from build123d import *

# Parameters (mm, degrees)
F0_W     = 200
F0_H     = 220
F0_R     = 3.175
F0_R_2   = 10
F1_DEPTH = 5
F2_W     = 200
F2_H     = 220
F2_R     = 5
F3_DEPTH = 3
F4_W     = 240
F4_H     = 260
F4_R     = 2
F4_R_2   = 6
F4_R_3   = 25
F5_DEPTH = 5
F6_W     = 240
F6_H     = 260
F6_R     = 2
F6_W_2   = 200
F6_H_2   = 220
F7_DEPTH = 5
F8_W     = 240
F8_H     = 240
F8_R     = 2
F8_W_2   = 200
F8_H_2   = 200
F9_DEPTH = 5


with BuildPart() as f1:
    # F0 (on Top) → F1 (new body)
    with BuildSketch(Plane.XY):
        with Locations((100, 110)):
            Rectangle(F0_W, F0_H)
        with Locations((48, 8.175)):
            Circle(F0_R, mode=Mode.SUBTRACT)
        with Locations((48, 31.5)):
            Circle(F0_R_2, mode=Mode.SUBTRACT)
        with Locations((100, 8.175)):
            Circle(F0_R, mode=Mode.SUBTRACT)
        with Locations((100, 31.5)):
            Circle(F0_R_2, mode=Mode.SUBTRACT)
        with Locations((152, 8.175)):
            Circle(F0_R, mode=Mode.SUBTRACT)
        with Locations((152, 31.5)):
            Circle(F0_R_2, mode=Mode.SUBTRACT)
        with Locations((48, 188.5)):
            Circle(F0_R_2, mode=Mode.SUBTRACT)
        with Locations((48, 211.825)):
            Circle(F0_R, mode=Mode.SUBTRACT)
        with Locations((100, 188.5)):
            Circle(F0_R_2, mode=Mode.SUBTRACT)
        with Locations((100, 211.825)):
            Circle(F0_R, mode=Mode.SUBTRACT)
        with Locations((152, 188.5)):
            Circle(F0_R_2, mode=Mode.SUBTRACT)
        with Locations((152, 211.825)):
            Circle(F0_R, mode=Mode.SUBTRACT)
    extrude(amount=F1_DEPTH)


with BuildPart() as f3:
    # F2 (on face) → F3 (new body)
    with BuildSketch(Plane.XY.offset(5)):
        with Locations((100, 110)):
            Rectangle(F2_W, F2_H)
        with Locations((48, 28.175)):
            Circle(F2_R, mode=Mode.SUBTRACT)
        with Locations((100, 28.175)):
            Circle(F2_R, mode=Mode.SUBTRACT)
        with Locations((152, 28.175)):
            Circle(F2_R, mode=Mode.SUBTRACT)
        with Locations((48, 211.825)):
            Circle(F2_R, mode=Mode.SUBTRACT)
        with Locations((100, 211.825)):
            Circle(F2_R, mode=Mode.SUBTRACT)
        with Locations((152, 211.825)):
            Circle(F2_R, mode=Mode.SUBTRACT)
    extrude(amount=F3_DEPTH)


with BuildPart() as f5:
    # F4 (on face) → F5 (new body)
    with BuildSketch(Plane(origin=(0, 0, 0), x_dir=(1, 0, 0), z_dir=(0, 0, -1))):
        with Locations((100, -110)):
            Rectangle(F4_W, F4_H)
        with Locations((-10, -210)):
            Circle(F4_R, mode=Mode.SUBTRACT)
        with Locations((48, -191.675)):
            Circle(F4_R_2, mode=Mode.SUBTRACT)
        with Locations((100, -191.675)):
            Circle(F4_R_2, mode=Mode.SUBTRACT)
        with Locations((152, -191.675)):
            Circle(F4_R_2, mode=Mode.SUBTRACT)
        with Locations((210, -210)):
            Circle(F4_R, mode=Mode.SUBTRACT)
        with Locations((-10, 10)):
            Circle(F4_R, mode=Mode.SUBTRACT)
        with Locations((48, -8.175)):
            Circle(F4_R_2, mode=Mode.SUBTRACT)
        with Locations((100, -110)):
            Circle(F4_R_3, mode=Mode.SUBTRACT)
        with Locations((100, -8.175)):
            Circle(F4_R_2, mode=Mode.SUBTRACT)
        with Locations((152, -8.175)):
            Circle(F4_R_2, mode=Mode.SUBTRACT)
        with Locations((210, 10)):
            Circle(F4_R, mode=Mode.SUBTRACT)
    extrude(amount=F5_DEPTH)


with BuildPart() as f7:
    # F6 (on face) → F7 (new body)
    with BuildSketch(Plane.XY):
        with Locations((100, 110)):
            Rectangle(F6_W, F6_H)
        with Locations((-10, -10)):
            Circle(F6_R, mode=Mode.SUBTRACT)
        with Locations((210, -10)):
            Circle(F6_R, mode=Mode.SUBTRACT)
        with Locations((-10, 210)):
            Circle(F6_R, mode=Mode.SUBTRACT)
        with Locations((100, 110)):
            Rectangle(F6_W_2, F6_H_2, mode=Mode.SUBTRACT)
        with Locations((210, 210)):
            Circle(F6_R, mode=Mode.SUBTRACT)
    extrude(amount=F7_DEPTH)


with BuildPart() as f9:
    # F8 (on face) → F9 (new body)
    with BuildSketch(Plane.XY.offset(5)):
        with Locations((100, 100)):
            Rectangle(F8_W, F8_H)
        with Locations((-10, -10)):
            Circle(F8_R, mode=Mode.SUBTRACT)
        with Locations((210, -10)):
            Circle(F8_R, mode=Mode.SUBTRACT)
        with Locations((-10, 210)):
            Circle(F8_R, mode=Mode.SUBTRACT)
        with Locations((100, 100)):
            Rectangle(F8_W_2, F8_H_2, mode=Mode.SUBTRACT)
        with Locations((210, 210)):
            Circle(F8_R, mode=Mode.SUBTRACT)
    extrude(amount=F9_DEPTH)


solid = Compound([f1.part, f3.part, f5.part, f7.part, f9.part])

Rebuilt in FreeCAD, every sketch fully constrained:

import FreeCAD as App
import Part
import Sketcher
Q = App.Units.Quantity

doc = App.newDocument("Part")
body = doc.addObject("PartDesign::Body", "Body")

# Sketch on XY plane
sketch1 = body.newObject("Sketcher::SketchObject", "Sketch")
sketch1.AttachmentSupport = (doc.getObject("XY_Plane"), [""])
sketch1.MapMode = "FlatFace"
sketch1.addGeometry(Part.LineSegment(App.Vector(0, 220, 0), App.Vector(0, 0, 0)), False)
sketch1.addGeometry(Part.LineSegment(App.Vector(0, 0, 0), App.Vector(200, 0, 0)), False)
sketch1.addGeometry(Part.LineSegment(App.Vector(200, 0, 0), App.Vector(200, 220, 0)), False)
sketch1.addGeometry(Part.LineSegment(App.Vector(200, 220, 0), App.Vector(0, 220, 0)), False)
sketch1.addGeometry(Part.Circle(App.Vector(48, 8.2, 0), App.Vector(0, 0, 1), 3.2), False)
sketch1.addGeometry(Part.Circle(App.Vector(48, 31.5, 0), App.Vector(0, 0, 1), 10), False)
sketch1.addGeometry(Part.Circle(App.Vector(100, 8.2, 0), App.Vector(0, 0, 1), 3.2), False)
sketch1.addGeometry(Part.Circle(App.Vector(100, 31.5, 0), App.Vector(0, 0, 1), 10), False)
sketch1.addGeometry(Part.Circle(App.Vector(152, 8.2, 0), App.Vector(0, 0, 1), 3.2), False)
sketch1.addGeometry(Part.Circle(App.Vector(152, 31.5, 0), App.Vector(0, 0, 1), 10), False)
sketch1.addGeometry(Part.Circle(App.Vector(48, 188.5, 0), App.Vector(0, 0, 1), 10), False)
sketch1.addGeometry(Part.Circle(App.Vector(48, 211.8, 0), App.Vector(0, 0, 1), 3.2), False)
sketch1.addGeometry(Part.Circle(App.Vector(100, 188.5, 0), App.Vector(0, 0, 1), 10), False)
sketch1.addGeometry(Part.Circle(App.Vector(100, 211.8, 0), App.Vector(0, 0, 1), 3.2), False)
sketch1.addGeometry(Part.Circle(App.Vector(152, 188.5, 0), App.Vector(0, 0, 1), 10), False)
sketch1.addGeometry(Part.Circle(App.Vector(152, 211.8, 0), App.Vector(0, 0, 1), 3.2), False)
sketch1.addConstraint(Sketcher.Constraint("Coincident", 0, 2, 1, 1))
sketch1.addConstraint(Sketcher.Constraint("Coincident", 1, 2, 2, 1))
sketch1.addConstraint(Sketcher.Constraint("Coincident", 2, 2, 3, 1))
sketch1.addConstraint(Sketcher.Constraint("Coincident", 3, 2, 0, 1))
sketch1.addConstraint(Sketcher.Constraint("Vertical", 0))
sketch1.addConstraint(Sketcher.Constraint("Horizontal", 1))
sketch1.addConstraint(Sketcher.Constraint("Vertical", 2))
sketch1.addConstraint(Sketcher.Constraint("Horizontal", 3))
sketch1.addConstraint(Sketcher.Constraint("Coincident", 0, 2, -1, 1))
sketch1.addConstraint(Sketcher.Constraint("Equal", 4, 6))
sketch1.addConstraint(Sketcher.Constraint("Equal", 5, 7))
sketch1.addConstraint(Sketcher.Constraint("Equal", 6, 8))
sketch1.addConstraint(Sketcher.Constraint("Equal", 7, 9))
sketch1.addConstraint(Sketcher.Constraint("Equal", 9, 10))
sketch1.addConstraint(Sketcher.Constraint("Equal", 8, 11))
sketch1.addConstraint(Sketcher.Constraint("Equal", 10, 12))
sketch1.addConstraint(Sketcher.Constraint("Equal", 11, 13))
sketch1.addConstraint(Sketcher.Constraint("Equal", 12, 14))
sketch1.addConstraint(Sketcher.Constraint("Equal", 13, 15))
sketch1.addConstraint(Sketcher.Constraint("Horizontal", 4, 3, 6, 3))
sketch1.addConstraint(Sketcher.Constraint("Horizontal", 5, 3, 7, 3))
sketch1.addConstraint(Sketcher.Constraint("Horizontal", 6, 3, 8, 3))
sketch1.addConstraint(Sketcher.Constraint("Horizontal", 7, 3, 9, 3))
sketch1.addConstraint(Sketcher.Constraint("Horizontal", 10, 3, 12, 3))
sketch1.addConstraint(Sketcher.Constraint("Horizontal", 11, 3, 13, 3))
sketch1.addConstraint(Sketcher.Constraint("Horizontal", 12, 3, 14, 3))
sketch1.addConstraint(Sketcher.Constraint("Horizontal", 13, 3, 15, 3))
sketch1.addConstraint(Sketcher.Constraint("Vertical", 4, 3, 5, 3))
sketch1.addConstraint(Sketcher.Constraint("Vertical", 6, 3, 7, 3))
sketch1.addConstraint(Sketcher.Constraint("Vertical", 8, 3, 9, 3))
sketch1.addConstraint(Sketcher.Constraint("Vertical", 5, 3, 10, 3))
sketch1.addConstraint(Sketcher.Constraint("Vertical", 10, 3, 11, 3))
sketch1.addConstraint(Sketcher.Constraint("Vertical", 7, 3, 12, 3))
sketch1.addConstraint(Sketcher.Constraint("Vertical", 12, 3, 13, 3))
sketch1.addConstraint(Sketcher.Constraint("Vertical", 9, 3, 14, 3))
sketch1.addConstraint(Sketcher.Constraint("Vertical", 14, 3, 15, 3))
sketch1.addConstraint(Sketcher.Constraint("Diameter", 5, Q("20 mm")))
sketch1.addConstraint(Sketcher.Constraint("Diameter", 4, Q("6.35 mm")))
sketch1.addConstraint(Sketcher.Constraint("DistanceX", 1, 1, 1, 2, Q("200 mm")))
sketch1.addConstraint(Sketcher.Constraint("DistanceY", 0, 2, 0, 1, Q("220 mm")))
sketch1.addConstraint(Sketcher.Constraint("DistanceX", -1, 1, 4, 3, Q("48 mm")))
sketch1.addConstraint(Sketcher.Constraint("DistanceX", -1, 1, 6, 3, Q("100 mm")))
sketch1.addConstraint(Sketcher.Constraint("DistanceX", -1, 1, 8, 3, Q("152 mm")))
sketch1.addConstraint(Sketcher.Constraint("DistanceY", 5, 3, 10, 3, Q("157 mm")))
sketch1.addConstraint(Sketcher.Constraint("DistanceY", -1, 1, 5, 3, Q("31.5 mm")))
sketch1.addConstraint(Sketcher.Constraint("DistanceY", 4, 3, 11, 3, Q("203.65 mm")))
sketch1.addConstraint(Sketcher.Constraint("DistanceY", -1, 1, 4, 3, Q("8.175 mm")))
pad1 = body.newObject("PartDesign::Pad", "Pad")
pad1.Profile = sketch1
pad1.Length = 5
body2 = doc.addObject("PartDesign::Body", "Body001")

# Sketch on XY plane
sketch2 = body2.newObject("Sketcher::SketchObject", "Sketch001")
sketch2.AttachmentSupport = (doc.getObject("XY_Plane001"), [""])
sketch2.MapMode = "FlatFace"
sketch2.AttachmentOffset = App.Placement(App.Vector(0, 0, 5), App.Rotation())
sketch2.addGeometry(Part.LineSegment(App.Vector(0, 220, 0), App.Vector(0, 0, 0)), False)
sketch2.addGeometry(Part.LineSegment(App.Vector(0, 0, 0), App.Vector(200, 0, 0)), False)
sketch2.addGeometry(Part.LineSegment(App.Vector(200, 0, 0), App.Vector(200, 220, 0)), False)
sketch2.addGeometry(Part.LineSegment(App.Vector(200, 220, 0), App.Vector(0, 220, 0)), False)
sketch2.addGeometry(Part.Circle(App.Vector(48, 28, 0), App.Vector(0, 0, 1), 5), False)
sketch2.addGeometry(Part.Circle(App.Vector(100, 28, 0), App.Vector(0, 0, 1), 5), False)
sketch2.addGeometry(Part.Circle(App.Vector(152, 28, 0), App.Vector(0, 0, 1), 5), False)
sketch2.addGeometry(Part.Circle(App.Vector(48, 212, 0), App.Vector(0, 0, 1), 5), False)
sketch2.addGeometry(Part.Circle(App.Vector(100, 212, 0), App.Vector(0, 0, 1), 5), False)
sketch2.addGeometry(Part.Circle(App.Vector(152, 212, 0), App.Vector(0, 0, 1), 5), False)
sketch2.addConstraint(Sketcher.Constraint("Coincident", 0, 2, 1, 1))
sketch2.addConstraint(Sketcher.Constraint("Coincident", 1, 2, 2, 1))
sketch2.addConstraint(Sketcher.Constraint("Coincident", 2, 2, 3, 1))
sketch2.addConstraint(Sketcher.Constraint("Coincident", 3, 2, 0, 1))
sketch2.addConstraint(Sketcher.Constraint("Vertical", 0))
sketch2.addConstraint(Sketcher.Constraint("Horizontal", 1))
sketch2.addConstraint(Sketcher.Constraint("Vertical", 2))
sketch2.addConstraint(Sketcher.Constraint("Horizontal", 3))
sketch2.addConstraint(Sketcher.Constraint("Coincident", 0, 2, -1, 1))
sketch2.addConstraint(Sketcher.Constraint("Equal", 4, 5))
sketch2.addConstraint(Sketcher.Constraint("Equal", 5, 6))
sketch2.addConstraint(Sketcher.Constraint("Equal", 6, 7))
sketch2.addConstraint(Sketcher.Constraint("Equal", 7, 8))
sketch2.addConstraint(Sketcher.Constraint("Equal", 8, 9))
sketch2.addConstraint(Sketcher.Constraint("Horizontal", 4, 3, 5, 3))
sketch2.addConstraint(Sketcher.Constraint("Horizontal", 5, 3, 6, 3))
sketch2.addConstraint(Sketcher.Constraint("Horizontal", 7, 3, 8, 3))
sketch2.addConstraint(Sketcher.Constraint("Horizontal", 8, 3, 9, 3))
sketch2.addConstraint(Sketcher.Constraint("Vertical", 4, 3, 7, 3))
sketch2.addConstraint(Sketcher.Constraint("Vertical", 5, 3, 8, 3))
sketch2.addConstraint(Sketcher.Constraint("Vertical", 6, 3, 9, 3))
sketch2.addConstraint(Sketcher.Constraint("Diameter", 4, Q("10 mm")))
sketch2.addConstraint(Sketcher.Constraint("DistanceX", 1, 1, 1, 2, Q("200 mm")))
sketch2.addConstraint(Sketcher.Constraint("DistanceY", 0, 2, 0, 1, Q("220 mm")))
sketch2.addConstraint(Sketcher.Constraint("DistanceX", -1, 1, 4, 3, Q("48 mm")))
sketch2.addConstraint(Sketcher.Constraint("DistanceX", -1, 1, 5, 3, Q("100 mm")))
sketch2.addConstraint(Sketcher.Constraint("DistanceX", -1, 1, 6, 3, Q("152 mm")))
sketch2.addConstraint(Sketcher.Constraint("DistanceY", 4, 3, 7, 3, Q("183.65 mm")))
sketch2.addConstraint(Sketcher.Constraint("DistanceY", -1, 1, 4, 3, Q("28.175 mm")))
pad2 = body2.newObject("PartDesign::Pad", "Pad001")
pad2.Profile = sketch2
pad2.Length = 3
body3 = doc.addObject("PartDesign::Body", "Body002")

# Sketch on XY plane
sketch3 = body3.newObject("Sketcher::SketchObject", "Sketch002")
sketch3.AttachmentSupport = (doc.getObject("XY_Plane002"), [""])
sketch3.MapMode = "FlatFace"
sketch3.addGeometry(Part.LineSegment(App.Vector(-20, -20, 0), App.Vector(-20, 240, 0)), False)
sketch3.addGeometry(Part.LineSegment(App.Vector(-20, 240, 0), App.Vector(220, 240, 0)), False)
sketch3.addGeometry(Part.LineSegment(App.Vector(220, 240, 0), App.Vector(220, -20, 0)), False)
sketch3.addGeometry(Part.LineSegment(App.Vector(220, -20, 0), App.Vector(-20, -20, 0)), False)
sketch3.addGeometry(Part.Circle(App.Vector(-10, 210, 0), App.Vector(0, 0, 1), 2), False)
sketch3.addGeometry(Part.Circle(App.Vector(48, 191.7, 0), App.Vector(0, 0, 1), 6), False)
sketch3.addGeometry(Part.Circle(App.Vector(100, 191.7, 0), App.Vector(0, 0, 1), 6), False)
sketch3.addGeometry(Part.Circle(App.Vector(152, 191.7, 0), App.Vector(0, 0, 1), 6), False)
sketch3.addGeometry(Part.Circle(App.Vector(210, 210, 0), App.Vector(0, 0, 1), 2), False)
sketch3.addGeometry(Part.Circle(App.Vector(100, 110, 0), App.Vector(0, 0, 1), 25), False)
sketch3.addGeometry(Part.Circle(App.Vector(-10, -10, 0), App.Vector(0, 0, 1), 2), False)
sketch3.addGeometry(Part.Circle(App.Vector(48, 8.2, 0), App.Vector(0, 0, 1), 6), False)
sketch3.addGeometry(Part.Circle(App.Vector(100, 8.2, 0), App.Vector(0, 0, 1), 6), False)
sketch3.addGeometry(Part.Circle(App.Vector(152, 8.2, 0), App.Vector(0, 0, 1), 6), False)
sketch3.addGeometry(Part.Circle(App.Vector(210, -10, 0), App.Vector(0, 0, 1), 2), False)
sketch3.addConstraint(Sketcher.Constraint("Coincident", 0, 2, 1, 1))
sketch3.addConstraint(Sketcher.Constraint("Coincident", 1, 2, 2, 1))
sketch3.addConstraint(Sketcher.Constraint("Coincident", 2, 2, 3, 1))
sketch3.addConstraint(Sketcher.Constraint("Coincident", 3, 2, 0, 1))
sketch3.addConstraint(Sketcher.Constraint("Vertical", 0))
sketch3.addConstraint(Sketcher.Constraint("Horizontal", 1))
sketch3.addConstraint(Sketcher.Constraint("Vertical", 2))
sketch3.addConstraint(Sketcher.Constraint("Horizontal", 3))
sketch3.addConstraint(Sketcher.Constraint("Equal", 5, 6))
sketch3.addConstraint(Sketcher.Constraint("Equal", 6, 7))
sketch3.addConstraint(Sketcher.Constraint("Equal", 4, 8))
sketch3.addConstraint(Sketcher.Constraint("Equal", 8, 10))
sketch3.addConstraint(Sketcher.Constraint("Equal", 7, 11))
sketch3.addConstraint(Sketcher.Constraint("Equal", 11, 12))
sketch3.addConstraint(Sketcher.Constraint("Equal", 12, 13))
sketch3.addConstraint(Sketcher.Constraint("Equal", 10, 14))
sketch3.addConstraint(Sketcher.Constraint("Horizontal", 5, 3, 6, 3))
sketch3.addConstraint(Sketcher.Constraint("Horizontal", 6, 3, 7, 3))
sketch3.addConstraint(Sketcher.Constraint("Horizontal", 4, 3, 8, 3))
sketch3.addConstraint(Sketcher.Constraint("Horizontal", 11, 3, 12, 3))
sketch3.addConstraint(Sketcher.Constraint("Horizontal", 12, 3, 13, 3))
sketch3.addConstraint(Sketcher.Constraint("Horizontal", 10, 3, 14, 3))
sketch3.addConstraint(Sketcher.Constraint("Vertical", 6, 3, 9, 3))
sketch3.addConstraint(Sketcher.Constraint("Vertical", 4, 3, 10, 3))
sketch3.addConstraint(Sketcher.Constraint("Vertical", 5, 3, 11, 3))
sketch3.addConstraint(Sketcher.Constraint("Vertical", 9, 3, 12, 3))
sketch3.addConstraint(Sketcher.Constraint("Vertical", 7, 3, 13, 3))
sketch3.addConstraint(Sketcher.Constraint("Vertical", 8, 3, 14, 3))
sketch3.addConstraint(Sketcher.Constraint("Diameter", 4, Q("4 mm")))
sketch3.addConstraint(Sketcher.Constraint("Diameter", 5, Q("12 mm")))
sketch3.addConstraint(Sketcher.Constraint("Diameter", 9, Q("50 mm")))
sketch3.addConstraint(Sketcher.Constraint("DistanceX", 1, 1, 1, 2, Q("240 mm")))
sketch3.addConstraint(Sketcher.Constraint("DistanceY", 0, 1, 0, 2, Q("260 mm")))
sketch3.addConstraint(Sketcher.Constraint("DistanceX", 4, 3, -1, 1, Q("10 mm")))
sketch3.addConstraint(Sketcher.Constraint("DistanceY", -1, 1, 4, 3, Q("210 mm")))
sketch3.addConstraint(Sketcher.Constraint("DistanceX", -1, 1, 5, 3, Q("48 mm")))
sketch3.addConstraint(Sketcher.Constraint("DistanceX", -1, 1, 6, 3, Q("100 mm")))
sketch3.addConstraint(Sketcher.Constraint("DistanceX", -1, 1, 7, 3, Q("152 mm")))
sketch3.addConstraint(Sketcher.Constraint("DistanceX", -1, 1, 8, 3, Q("210 mm")))
sketch3.addConstraint(Sketcher.Constraint("DistanceY", -1, 1, 9, 3, Q("110 mm")))
sketch3.addConstraint(Sketcher.Constraint("DistanceY", 10, 3, -1, 1, Q("10 mm")))
sketch3.addConstraint(Sketcher.Constraint("DistanceX", 0, 2, -1, 1, Q("20 mm")))
sketch3.addConstraint(Sketcher.Constraint("DistanceY", -1, 1, 0, 2, Q("240 mm")))
sketch3.addConstraint(Sketcher.Constraint("DistanceY", 11, 3, 5, 3, Q("183.5 mm")))
sketch3.addConstraint(Sketcher.Constraint("DistanceY", -1, 1, 5, 3, Q("191.675 mm")))
pad3 = body3.newObject("PartDesign::Pad", "Pad002")
pad3.Profile = sketch3
pad3.Length = 5
pad3.Reversed = True
body4 = doc.addObject("PartDesign::Body", "Body003")

# Sketch on XY plane
sketch4 = body4.newObject("Sketcher::SketchObject", "Sketch003")
sketch4.AttachmentSupport = (doc.getObject("XY_Plane003"), [""])
sketch4.MapMode = "FlatFace"
sketch4.addGeometry(Part.LineSegment(App.Vector(-20, 240, 0), App.Vector(-20, -20, 0)), False)
sketch4.addGeometry(Part.LineSegment(App.Vector(-20, -20, 0), App.Vector(220, -20, 0)), False)
sketch4.addGeometry(Part.LineSegment(App.Vector(220, -20, 0), App.Vector(220, 240, 0)), False)
sketch4.addGeometry(Part.LineSegment(App.Vector(220, 240, 0), App.Vector(-20, 240, 0)), False)
sketch4.addGeometry(Part.Circle(App.Vector(-10, -10, 0), App.Vector(0, 0, 1), 2), False)
sketch4.addGeometry(Part.Circle(App.Vector(210, -10, 0), App.Vector(0, 0, 1), 2), False)
sketch4.addGeometry(Part.Circle(App.Vector(-10, 210, 0), App.Vector(0, 0, 1), 2), False)
sketch4.addGeometry(Part.LineSegment(App.Vector(200, 0, 0), App.Vector(0, 0, 0)), False)
sketch4.addGeometry(Part.LineSegment(App.Vector(0, 0, 0), App.Vector(0, 220, 0)), False)
sketch4.addGeometry(Part.LineSegment(App.Vector(0, 220, 0), App.Vector(200, 220, 0)), False)
sketch4.addGeometry(Part.LineSegment(App.Vector(200, 220, 0), App.Vector(200, 0, 0)), False)
sketch4.addGeometry(Part.Circle(App.Vector(210, 210, 0), App.Vector(0, 0, 1), 2), False)
sketch4.addConstraint(Sketcher.Constraint("Coincident", 0, 2, 1, 1))
sketch4.addConstraint(Sketcher.Constraint("Coincident", 1, 2, 2, 1))
sketch4.addConstraint(Sketcher.Constraint("Coincident", 2, 2, 3, 1))
sketch4.addConstraint(Sketcher.Constraint("Coincident", 3, 2, 0, 1))
sketch4.addConstraint(Sketcher.Constraint("Coincident", 7, 2, 8, 1))
sketch4.addConstraint(Sketcher.Constraint("Coincident", 8, 2, 9, 1))
sketch4.addConstraint(Sketcher.Constraint("Coincident", 9, 2, 10, 1))
sketch4.addConstraint(Sketcher.Constraint("Coincident", 10, 2, 7, 1))
sketch4.addConstraint(Sketcher.Constraint("Vertical", 0))
sketch4.addConstraint(Sketcher.Constraint("Horizontal", 1))
sketch4.addConstraint(Sketcher.Constraint("Vertical", 2))
sketch4.addConstraint(Sketcher.Constraint("Horizontal", 3))
sketch4.addConstraint(Sketcher.Constraint("Horizontal", 7))
sketch4.addConstraint(Sketcher.Constraint("Vertical", 8))
sketch4.addConstraint(Sketcher.Constraint("Horizontal", 9))
sketch4.addConstraint(Sketcher.Constraint("Vertical", 10))
sketch4.addConstraint(Sketcher.Constraint("Coincident", 7, 2, -1, 1))
sketch4.addConstraint(Sketcher.Constraint("Equal", 4, 5))
sketch4.addConstraint(Sketcher.Constraint("Equal", 5, 6))
sketch4.addConstraint(Sketcher.Constraint("Equal", 6, 11))
sketch4.addConstraint(Sketcher.Constraint("Horizontal", 4, 3, 5, 3))
sketch4.addConstraint(Sketcher.Constraint("Horizontal", 6, 3, 11, 3))
sketch4.addConstraint(Sketcher.Constraint("Vertical", 4, 3, 6, 3))
sketch4.addConstraint(Sketcher.Constraint("Vertical", 5, 3, 11, 3))
sketch4.addConstraint(Sketcher.Constraint("Diameter", 4, Q("4 mm")))
sketch4.addConstraint(Sketcher.Constraint("DistanceX", 1, 1, 1, 2, Q("240 mm")))
sketch4.addConstraint(Sketcher.Constraint("DistanceX", 7, 2, 7, 1, Q("200 mm")))
sketch4.addConstraint(Sketcher.Constraint("DistanceY", 0, 2, 0, 1, Q("260 mm")))
sketch4.addConstraint(Sketcher.Constraint("DistanceY", 8, 1, 8, 2, Q("220 mm")))
sketch4.addConstraint(Sketcher.Constraint("DistanceX", 4, 3, -1, 1, Q("10 mm")))
sketch4.addConstraint(Sketcher.Constraint("DistanceY", 4, 3, -1, 1, Q("10 mm")))
sketch4.addConstraint(Sketcher.Constraint("DistanceX", -1, 1, 5, 3, Q("210 mm")))
sketch4.addConstraint(Sketcher.Constraint("DistanceY", -1, 1, 6, 3, Q("210 mm")))
sketch4.addConstraint(Sketcher.Constraint("DistanceX", 0, 2, -1, 1, Q("20 mm")))
sketch4.addConstraint(Sketcher.Constraint("DistanceY", 0, 2, -1, 1, Q("20 mm")))
pad4 = body4.newObject("PartDesign::Pad", "Pad003")
pad4.Profile = sketch4
pad4.Length = 5
body5 = doc.addObject("PartDesign::Body", "Body004")

# Sketch on XY plane
sketch5 = body5.newObject("Sketcher::SketchObject", "Sketch004")
sketch5.AttachmentSupport = (doc.getObject("XY_Plane004"), [""])
sketch5.MapMode = "FlatFace"
sketch5.AttachmentOffset = App.Placement(App.Vector(0, 0, 5), App.Rotation())
sketch5.addGeometry(Part.LineSegment(App.Vector(-20, 220, 0), App.Vector(-20, -20, 0)), False)
sketch5.addGeometry(Part.LineSegment(App.Vector(-20, -20, 0), App.Vector(220, -20, 0)), False)
sketch5.addGeometry(Part.LineSegment(App.Vector(220, -20, 0), App.Vector(220, 220, 0)), False)
sketch5.addGeometry(Part.LineSegment(App.Vector(220, 220, 0), App.Vector(-20, 220, 0)), False)
sketch5.addGeometry(Part.Circle(App.Vector(-10, -10, 0), App.Vector(0, 0, 1), 2), False)
sketch5.addGeometry(Part.Circle(App.Vector(210, -10, 0), App.Vector(0, 0, 1), 2), False)
sketch5.addGeometry(Part.Circle(App.Vector(-10, 210, 0), App.Vector(0, 0, 1), 2), False)
sketch5.addGeometry(Part.LineSegment(App.Vector(200, 0, 0), App.Vector(0, 0, 0)), False)
sketch5.addGeometry(Part.LineSegment(App.Vector(0, 0, 0), App.Vector(0, 200, 0)), False)
sketch5.addGeometry(Part.LineSegment(App.Vector(0, 200, 0), App.Vector(200, 200, 0)), False)
sketch5.addGeometry(Part.LineSegment(App.Vector(200, 200, 0), App.Vector(200, 0, 0)), False)
sketch5.addGeometry(Part.Circle(App.Vector(210, 210, 0), App.Vector(0, 0, 1), 2), False)
sketch5.addConstraint(Sketcher.Constraint("Coincident", 0, 2, 1, 1))
sketch5.addConstraint(Sketcher.Constraint("Coincident", 1, 2, 2, 1))
sketch5.addConstraint(Sketcher.Constraint("Coincident", 2, 2, 3, 1))
sketch5.addConstraint(Sketcher.Constraint("Coincident", 3, 2, 0, 1))
sketch5.addConstraint(Sketcher.Constraint("Coincident", 7, 2, 8, 1))
sketch5.addConstraint(Sketcher.Constraint("Coincident", 8, 2, 9, 1))
sketch5.addConstraint(Sketcher.Constraint("Coincident", 9, 2, 10, 1))
sketch5.addConstraint(Sketcher.Constraint("Coincident", 10, 2, 7, 1))
sketch5.addConstraint(Sketcher.Constraint("Vertical", 0))
sketch5.addConstraint(Sketcher.Constraint("Horizontal", 1))
sketch5.addConstraint(Sketcher.Constraint("Vertical", 2))
sketch5.addConstraint(Sketcher.Constraint("Horizontal", 3))
sketch5.addConstraint(Sketcher.Constraint("Horizontal", 7))
sketch5.addConstraint(Sketcher.Constraint("Vertical", 8))
sketch5.addConstraint(Sketcher.Constraint("Horizontal", 9))
sketch5.addConstraint(Sketcher.Constraint("Vertical", 10))
sketch5.addConstraint(Sketcher.Constraint("Coincident", 7, 2, -1, 1))
sketch5.addConstraint(Sketcher.Constraint("Equal", 4, 5))
sketch5.addConstraint(Sketcher.Constraint("Equal", 5, 6))
sketch5.addConstraint(Sketcher.Constraint("Equal", 6, 11))
sketch5.addConstraint(Sketcher.Constraint("Horizontal", 4, 3, 5, 3))
sketch5.addConstraint(Sketcher.Constraint("Horizontal", 6, 3, 11, 3))
sketch5.addConstraint(Sketcher.Constraint("Vertical", 4, 3, 6, 3))
sketch5.addConstraint(Sketcher.Constraint("Vertical", 5, 3, 11, 3))
sketch5.addConstraint(Sketcher.Constraint("Equal", 3, 0))
sketch5.addConstraint(Sketcher.Constraint("Equal", 9, 8))
sketch5.addConstraint(Sketcher.Constraint("Diameter", 4, Q("4 mm")))
sketch5.addConstraint(Sketcher.Constraint("DistanceX", 1, 1, 1, 2, Q("240 mm")))
sketch5.addConstraint(Sketcher.Constraint("DistanceX", 7, 2, 7, 1, Q("200 mm")))
sketch5.addConstraint(Sketcher.Constraint("DistanceX", 4, 3, -1, 1, Q("10 mm")))
sketch5.addConstraint(Sketcher.Constraint("DistanceY", 4, 3, -1, 1, Q("10 mm")))
sketch5.addConstraint(Sketcher.Constraint("DistanceX", -1, 1, 5, 3, Q("210 mm")))
sketch5.addConstraint(Sketcher.Constraint("DistanceY", -1, 1, 6, 3, Q("210 mm")))
sketch5.addConstraint(Sketcher.Constraint("DistanceX", 0, 2, -1, 1, Q("20 mm")))
sketch5.addConstraint(Sketcher.Constraint("DistanceY", 0, 2, -1, 1, Q("20 mm")))
pad5 = body5.newObject("PartDesign::Pad", "Pad004")
pad5.Profile = sketch5
pad5.Length = 5

doc.recompute()
